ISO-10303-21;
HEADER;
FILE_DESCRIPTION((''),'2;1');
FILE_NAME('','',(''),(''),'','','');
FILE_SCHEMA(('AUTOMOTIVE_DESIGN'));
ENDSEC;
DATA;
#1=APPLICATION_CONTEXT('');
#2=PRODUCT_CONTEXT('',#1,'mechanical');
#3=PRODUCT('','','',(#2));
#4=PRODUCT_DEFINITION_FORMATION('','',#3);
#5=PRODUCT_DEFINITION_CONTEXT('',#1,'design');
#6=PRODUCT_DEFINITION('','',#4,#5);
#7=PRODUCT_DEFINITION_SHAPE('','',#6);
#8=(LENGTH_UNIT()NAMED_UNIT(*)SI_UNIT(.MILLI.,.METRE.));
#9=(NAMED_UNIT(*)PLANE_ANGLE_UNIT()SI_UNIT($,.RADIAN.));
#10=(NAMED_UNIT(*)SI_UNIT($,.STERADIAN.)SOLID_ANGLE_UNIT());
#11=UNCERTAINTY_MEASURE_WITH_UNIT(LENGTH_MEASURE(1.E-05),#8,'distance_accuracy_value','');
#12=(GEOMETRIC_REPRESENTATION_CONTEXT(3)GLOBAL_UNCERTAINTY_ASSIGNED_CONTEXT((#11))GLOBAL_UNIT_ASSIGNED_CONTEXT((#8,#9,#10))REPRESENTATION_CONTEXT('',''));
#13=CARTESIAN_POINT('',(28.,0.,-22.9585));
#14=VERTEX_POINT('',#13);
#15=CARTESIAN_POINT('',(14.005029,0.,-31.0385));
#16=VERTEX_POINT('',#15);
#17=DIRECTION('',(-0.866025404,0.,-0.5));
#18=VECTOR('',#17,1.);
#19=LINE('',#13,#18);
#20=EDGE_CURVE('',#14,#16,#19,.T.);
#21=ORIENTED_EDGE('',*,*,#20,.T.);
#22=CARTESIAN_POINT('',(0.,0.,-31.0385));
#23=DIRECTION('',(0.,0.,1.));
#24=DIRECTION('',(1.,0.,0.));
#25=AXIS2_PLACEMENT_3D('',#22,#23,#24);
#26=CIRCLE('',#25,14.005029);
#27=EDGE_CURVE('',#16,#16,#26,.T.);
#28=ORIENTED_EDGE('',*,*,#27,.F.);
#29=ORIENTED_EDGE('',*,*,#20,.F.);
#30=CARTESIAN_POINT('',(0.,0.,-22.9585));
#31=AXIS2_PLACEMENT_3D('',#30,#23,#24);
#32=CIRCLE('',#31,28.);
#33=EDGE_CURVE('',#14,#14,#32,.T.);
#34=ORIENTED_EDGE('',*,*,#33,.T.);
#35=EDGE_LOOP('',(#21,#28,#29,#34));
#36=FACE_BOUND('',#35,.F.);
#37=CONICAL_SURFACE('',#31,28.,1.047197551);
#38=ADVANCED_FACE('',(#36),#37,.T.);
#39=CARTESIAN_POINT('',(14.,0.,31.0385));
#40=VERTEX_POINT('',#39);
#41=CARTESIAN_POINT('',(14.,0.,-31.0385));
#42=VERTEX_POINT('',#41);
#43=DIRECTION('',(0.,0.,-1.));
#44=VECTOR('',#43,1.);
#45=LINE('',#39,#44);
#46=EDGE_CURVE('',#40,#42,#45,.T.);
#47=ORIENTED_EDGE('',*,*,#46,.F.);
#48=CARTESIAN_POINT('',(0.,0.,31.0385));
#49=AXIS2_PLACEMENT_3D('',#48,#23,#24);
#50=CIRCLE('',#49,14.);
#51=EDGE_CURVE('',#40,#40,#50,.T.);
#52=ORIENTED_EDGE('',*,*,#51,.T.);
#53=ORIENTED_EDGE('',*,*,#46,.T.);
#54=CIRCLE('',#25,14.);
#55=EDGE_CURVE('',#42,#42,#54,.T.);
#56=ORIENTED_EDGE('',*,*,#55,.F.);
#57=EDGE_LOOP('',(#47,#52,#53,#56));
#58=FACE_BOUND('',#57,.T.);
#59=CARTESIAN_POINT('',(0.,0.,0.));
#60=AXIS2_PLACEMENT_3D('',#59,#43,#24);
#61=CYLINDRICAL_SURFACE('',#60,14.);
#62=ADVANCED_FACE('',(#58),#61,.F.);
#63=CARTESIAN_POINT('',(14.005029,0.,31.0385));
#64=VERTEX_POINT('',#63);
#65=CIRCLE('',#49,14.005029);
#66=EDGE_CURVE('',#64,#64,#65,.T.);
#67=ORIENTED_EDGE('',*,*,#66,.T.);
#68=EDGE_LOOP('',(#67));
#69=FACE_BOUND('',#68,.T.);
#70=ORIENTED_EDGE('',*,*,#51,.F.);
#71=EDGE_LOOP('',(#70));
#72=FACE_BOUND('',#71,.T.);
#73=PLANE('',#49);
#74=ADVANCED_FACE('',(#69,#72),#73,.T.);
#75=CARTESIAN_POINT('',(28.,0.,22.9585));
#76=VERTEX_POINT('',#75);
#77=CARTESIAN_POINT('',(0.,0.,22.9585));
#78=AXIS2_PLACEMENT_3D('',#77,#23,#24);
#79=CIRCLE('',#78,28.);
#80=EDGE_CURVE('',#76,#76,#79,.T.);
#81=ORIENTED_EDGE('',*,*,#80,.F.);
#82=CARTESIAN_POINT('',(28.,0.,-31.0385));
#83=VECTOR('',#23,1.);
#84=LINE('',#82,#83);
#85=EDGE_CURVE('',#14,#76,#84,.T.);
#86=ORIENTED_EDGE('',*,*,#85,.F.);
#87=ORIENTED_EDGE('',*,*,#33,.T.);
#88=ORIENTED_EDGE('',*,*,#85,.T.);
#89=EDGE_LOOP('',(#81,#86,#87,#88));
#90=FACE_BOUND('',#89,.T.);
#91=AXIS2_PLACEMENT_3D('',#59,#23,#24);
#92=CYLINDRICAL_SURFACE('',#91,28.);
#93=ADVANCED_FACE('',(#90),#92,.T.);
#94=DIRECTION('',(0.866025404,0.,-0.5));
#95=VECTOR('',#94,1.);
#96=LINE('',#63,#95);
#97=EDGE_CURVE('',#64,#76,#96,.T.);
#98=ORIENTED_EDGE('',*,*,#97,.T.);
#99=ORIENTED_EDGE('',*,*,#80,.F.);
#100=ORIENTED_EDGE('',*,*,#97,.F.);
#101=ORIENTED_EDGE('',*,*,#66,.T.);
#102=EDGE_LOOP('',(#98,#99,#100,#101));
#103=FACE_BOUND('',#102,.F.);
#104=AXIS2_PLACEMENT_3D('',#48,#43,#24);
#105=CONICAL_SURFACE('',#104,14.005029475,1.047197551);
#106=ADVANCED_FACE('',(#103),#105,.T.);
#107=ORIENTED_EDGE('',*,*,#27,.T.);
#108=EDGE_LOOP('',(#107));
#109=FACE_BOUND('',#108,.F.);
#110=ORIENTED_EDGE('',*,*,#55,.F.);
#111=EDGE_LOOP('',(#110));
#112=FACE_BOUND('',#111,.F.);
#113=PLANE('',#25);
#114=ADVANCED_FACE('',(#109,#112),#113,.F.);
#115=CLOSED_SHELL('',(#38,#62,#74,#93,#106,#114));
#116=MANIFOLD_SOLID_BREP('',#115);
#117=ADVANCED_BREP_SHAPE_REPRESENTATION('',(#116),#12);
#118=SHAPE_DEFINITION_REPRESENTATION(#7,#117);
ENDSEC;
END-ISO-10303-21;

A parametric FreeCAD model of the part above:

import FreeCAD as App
import Part
import Sketcher

V = App.Vector
Q = App.Units.Quantity


def add_polygon(sketch, points):
    """Adds a closed chain of lines whose ends are joined by coincident constraints."""
    first, n = sketch.GeometryCount, len(points)
    for a, b in zip(points, points[1:] + points[:1]):
        sketch.addGeometry(Part.LineSegment(App.Vector(*a, 0), App.Vector(*b, 0)), False)
    for i in range(n):
        sketch.addConstraint(Sketcher.Constraint("Coincident", first + i, 2, first + (i + 1) % n, 1))

doc = App.newDocument("Part")
body = doc.addObject("PartDesign::Body", "Body")

# Sketch on XY plane
sketch1 = body.newObject("Sketcher::SketchObject", "Sketch")
sketch1.AttachmentSupport = (doc.getObject("XY_Plane"), [""])
sketch1.MapMode = "FlatFace"
sketch1.addGeometry(Part.Circle(V(0, 0, 0), V(0, 0, 1), 28), False)
sketch1.addGeometry(Part.Circle(V(0, 0, 0), V(0, 0, 1), 14), False)
sketch1.addConstraint(Sketcher.Constraint("Coincident", 0, 3, -1, 1))
sketch1.addConstraint(Sketcher.Constraint("Coincident", 1, 3, -1, 1))
sketch1.addConstraint(Sketcher.Constraint("Diameter", 0, Q("56 mm")))
sketch1.addConstraint(Sketcher.Constraint("Diameter", 1, Q("28 mm")))
pad1 = body.newObject("PartDesign::Pad", "Pad")
pad1.Profile = sketch1
pad1.Length = 62.077
pad1.Midplane = True

# Sketch on XZ plane
sketch2 = body.newObject("Sketcher::SketchObject", "Sketch001")
sketch2.AttachmentSupport = (doc.getObject("XZ_Plane"), [""])
sketch2.MapMode = "FlatFace"
add_polygon(sketch2, [(28, 31), (14, 31), (28, 23)])  # lines 0-2
add_polygon(sketch2, [(28, -23), (14, -31), (28, -31)])  # lines 3-5
sketch2.addConstraint(Sketcher.Constraint("Horizontal", 0))
sketch2.addConstraint(Sketcher.Constraint("Vertical", 2))
sketch2.addConstraint(Sketcher.Constraint("Horizontal", 4))
sketch2.addConstraint(Sketcher.Constraint("Vertical", 5))
sketch2.addConstraint(Sketcher.Constraint("Symmetric", 0, 2, 3, 2, -1))
sketch2.addConstraint(Sketcher.Constraint("Symmetric", 1, 2, 5, 2, -1))
sketch2.addConstraint(Sketcher.Constraint("Angle", 1, Q("-30 deg")))
sketch2.addConstraint(Sketcher.Constraint("DistanceX", -1, 1, 1, 2, Q("28 mm")))
sketch2.addConstraint(Sketcher.Constraint("DistanceY", 2, 1, 2, 2, Q("8.08 mm")))
sketch2.addConstraint(Sketcher.Constraint("DistanceY", 3, 2, 1, 2, Q("53.997 mm")))
groove = body.newObject("PartDesign::Groove", "Groove")
groove.Profile = sketch2
groove.ReferenceAxis = (sketch2, ["V_Axis"])
groove.Angle = 360

doc.recompute()
